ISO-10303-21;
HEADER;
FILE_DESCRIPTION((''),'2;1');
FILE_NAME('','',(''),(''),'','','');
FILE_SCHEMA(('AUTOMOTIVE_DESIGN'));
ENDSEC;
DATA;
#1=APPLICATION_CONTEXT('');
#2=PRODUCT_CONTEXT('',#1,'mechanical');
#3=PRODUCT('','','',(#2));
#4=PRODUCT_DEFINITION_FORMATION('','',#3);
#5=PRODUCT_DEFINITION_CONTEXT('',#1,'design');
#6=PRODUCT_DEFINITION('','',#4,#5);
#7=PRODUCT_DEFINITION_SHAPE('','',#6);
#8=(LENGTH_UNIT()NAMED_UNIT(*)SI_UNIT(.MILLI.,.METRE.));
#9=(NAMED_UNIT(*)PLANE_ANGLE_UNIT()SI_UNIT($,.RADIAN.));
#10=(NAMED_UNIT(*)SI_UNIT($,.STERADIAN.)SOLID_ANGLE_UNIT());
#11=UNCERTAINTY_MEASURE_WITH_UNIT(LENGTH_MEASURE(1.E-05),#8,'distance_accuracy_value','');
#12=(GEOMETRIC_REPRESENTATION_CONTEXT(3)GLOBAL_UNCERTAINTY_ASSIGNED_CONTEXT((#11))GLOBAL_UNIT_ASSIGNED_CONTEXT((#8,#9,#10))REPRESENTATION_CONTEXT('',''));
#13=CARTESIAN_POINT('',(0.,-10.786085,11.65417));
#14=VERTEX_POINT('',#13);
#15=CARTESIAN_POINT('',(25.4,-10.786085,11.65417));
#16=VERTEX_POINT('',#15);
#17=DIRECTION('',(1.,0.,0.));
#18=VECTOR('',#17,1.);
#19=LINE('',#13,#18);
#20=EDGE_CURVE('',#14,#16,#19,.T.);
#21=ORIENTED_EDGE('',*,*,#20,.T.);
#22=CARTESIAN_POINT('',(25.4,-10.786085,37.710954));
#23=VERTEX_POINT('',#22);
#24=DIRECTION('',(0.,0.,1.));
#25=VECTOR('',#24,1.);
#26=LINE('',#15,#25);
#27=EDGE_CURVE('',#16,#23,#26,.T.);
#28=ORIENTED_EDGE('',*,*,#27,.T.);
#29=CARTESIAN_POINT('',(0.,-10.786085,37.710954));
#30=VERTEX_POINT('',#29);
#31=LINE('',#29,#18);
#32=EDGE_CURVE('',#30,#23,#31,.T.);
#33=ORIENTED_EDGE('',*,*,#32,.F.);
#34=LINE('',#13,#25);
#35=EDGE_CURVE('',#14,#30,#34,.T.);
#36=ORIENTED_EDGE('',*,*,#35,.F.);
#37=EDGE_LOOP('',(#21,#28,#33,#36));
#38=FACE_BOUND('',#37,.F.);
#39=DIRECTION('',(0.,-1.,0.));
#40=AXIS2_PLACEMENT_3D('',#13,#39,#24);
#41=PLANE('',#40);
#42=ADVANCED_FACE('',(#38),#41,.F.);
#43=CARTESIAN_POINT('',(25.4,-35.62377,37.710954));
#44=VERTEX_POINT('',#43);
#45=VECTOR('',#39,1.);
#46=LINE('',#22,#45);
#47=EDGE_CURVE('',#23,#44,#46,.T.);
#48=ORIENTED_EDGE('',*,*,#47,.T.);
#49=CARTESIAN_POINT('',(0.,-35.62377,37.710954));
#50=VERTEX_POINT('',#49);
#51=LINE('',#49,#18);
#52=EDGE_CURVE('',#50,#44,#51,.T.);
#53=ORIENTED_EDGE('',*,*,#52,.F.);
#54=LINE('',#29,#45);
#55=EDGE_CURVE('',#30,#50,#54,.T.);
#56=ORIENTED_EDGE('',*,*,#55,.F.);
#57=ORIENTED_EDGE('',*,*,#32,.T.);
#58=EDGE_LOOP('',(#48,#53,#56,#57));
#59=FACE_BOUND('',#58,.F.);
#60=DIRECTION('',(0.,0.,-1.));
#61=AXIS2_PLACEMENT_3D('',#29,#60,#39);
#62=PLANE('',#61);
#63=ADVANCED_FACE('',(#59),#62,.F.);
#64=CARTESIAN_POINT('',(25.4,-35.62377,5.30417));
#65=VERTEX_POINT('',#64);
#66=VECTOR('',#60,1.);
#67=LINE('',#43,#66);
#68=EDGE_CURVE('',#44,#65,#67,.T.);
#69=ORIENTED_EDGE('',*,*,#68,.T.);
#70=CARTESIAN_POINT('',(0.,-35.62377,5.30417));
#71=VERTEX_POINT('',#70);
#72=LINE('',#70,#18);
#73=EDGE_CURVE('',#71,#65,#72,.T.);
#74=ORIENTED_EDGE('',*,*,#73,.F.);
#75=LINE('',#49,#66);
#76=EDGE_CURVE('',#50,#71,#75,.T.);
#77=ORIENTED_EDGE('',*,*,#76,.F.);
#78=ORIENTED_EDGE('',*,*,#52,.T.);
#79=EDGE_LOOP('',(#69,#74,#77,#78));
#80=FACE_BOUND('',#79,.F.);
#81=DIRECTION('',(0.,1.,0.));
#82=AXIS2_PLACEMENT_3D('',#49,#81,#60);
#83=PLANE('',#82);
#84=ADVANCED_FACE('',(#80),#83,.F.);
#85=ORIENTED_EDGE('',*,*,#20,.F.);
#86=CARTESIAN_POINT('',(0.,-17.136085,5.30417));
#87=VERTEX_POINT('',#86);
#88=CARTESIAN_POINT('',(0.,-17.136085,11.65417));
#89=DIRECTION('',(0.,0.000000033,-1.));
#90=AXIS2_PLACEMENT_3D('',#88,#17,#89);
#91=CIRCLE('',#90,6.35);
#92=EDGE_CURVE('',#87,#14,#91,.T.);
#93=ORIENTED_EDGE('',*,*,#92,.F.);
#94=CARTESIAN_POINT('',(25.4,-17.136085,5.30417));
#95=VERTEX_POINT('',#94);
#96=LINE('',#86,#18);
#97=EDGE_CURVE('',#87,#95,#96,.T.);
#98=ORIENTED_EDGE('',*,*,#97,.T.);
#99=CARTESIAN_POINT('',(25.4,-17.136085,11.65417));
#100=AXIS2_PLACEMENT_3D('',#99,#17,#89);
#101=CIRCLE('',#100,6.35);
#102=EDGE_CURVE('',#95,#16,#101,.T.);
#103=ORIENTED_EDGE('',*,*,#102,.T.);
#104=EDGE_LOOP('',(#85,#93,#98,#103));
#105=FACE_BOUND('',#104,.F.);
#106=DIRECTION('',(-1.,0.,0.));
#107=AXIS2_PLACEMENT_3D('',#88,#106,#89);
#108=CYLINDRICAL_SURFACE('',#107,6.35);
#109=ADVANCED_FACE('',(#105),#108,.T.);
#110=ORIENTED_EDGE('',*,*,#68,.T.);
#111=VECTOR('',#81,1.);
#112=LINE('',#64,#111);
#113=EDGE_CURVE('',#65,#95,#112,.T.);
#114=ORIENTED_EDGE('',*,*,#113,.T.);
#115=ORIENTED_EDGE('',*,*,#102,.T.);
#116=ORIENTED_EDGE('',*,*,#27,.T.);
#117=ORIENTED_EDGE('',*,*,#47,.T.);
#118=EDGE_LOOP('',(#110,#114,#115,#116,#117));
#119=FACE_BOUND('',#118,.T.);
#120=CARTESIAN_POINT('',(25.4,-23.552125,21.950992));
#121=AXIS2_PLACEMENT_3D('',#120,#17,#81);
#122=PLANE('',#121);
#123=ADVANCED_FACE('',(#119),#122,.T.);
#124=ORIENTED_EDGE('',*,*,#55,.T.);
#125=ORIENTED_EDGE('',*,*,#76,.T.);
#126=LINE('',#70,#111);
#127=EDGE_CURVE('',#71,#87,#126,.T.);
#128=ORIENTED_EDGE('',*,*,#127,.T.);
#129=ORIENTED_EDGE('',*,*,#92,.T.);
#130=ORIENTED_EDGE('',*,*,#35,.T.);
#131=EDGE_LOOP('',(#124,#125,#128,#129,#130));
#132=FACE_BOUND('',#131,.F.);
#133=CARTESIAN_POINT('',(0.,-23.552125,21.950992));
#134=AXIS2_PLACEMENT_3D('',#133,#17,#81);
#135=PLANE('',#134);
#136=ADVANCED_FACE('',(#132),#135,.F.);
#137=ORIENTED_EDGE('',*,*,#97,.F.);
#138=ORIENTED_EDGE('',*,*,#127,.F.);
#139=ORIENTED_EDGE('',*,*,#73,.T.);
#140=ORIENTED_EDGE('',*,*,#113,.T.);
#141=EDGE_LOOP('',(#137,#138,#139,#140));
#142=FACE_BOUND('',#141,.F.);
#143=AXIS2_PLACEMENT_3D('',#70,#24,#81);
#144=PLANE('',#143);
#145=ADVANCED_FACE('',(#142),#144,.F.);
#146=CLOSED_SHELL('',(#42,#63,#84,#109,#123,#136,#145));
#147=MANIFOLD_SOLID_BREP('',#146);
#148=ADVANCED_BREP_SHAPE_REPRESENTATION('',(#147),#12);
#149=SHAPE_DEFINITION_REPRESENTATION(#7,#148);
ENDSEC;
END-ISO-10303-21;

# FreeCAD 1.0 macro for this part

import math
import FreeCAD as App
import Part
import Sketcher
Q = App.Units.Quantity

doc = App.newDocument("Part")
body = doc.addObject("PartDesign::Body", "Body")

sketch1 = doc.addObject("Sketcher::SketchObject", "Sketch")
body.addObject(sketch1)
sketch1.AttachmentSupport = (doc.YZ_Plane, [""])
sketch1.MapMode = "FlatFace"
sketch1.addGeometry([
    Part.LineSegment(App.Vector(-10.786085, 37.710954, 0), App.Vector(-35.62377, 37.710954, 0)),
    Part.LineSegment(App.Vector(-35.62377, 37.710954, 0), App.Vector(-35.62377, 5.30417, 0)),
    Part.LineSegment(App.Vector(-35.62377, 5.30417, 0), App.Vector(-17.136085, 5.30417, 0)),
    Part.ArcOfCircle(Part.Circle(App.Vector(-17.136085, 11.65417, 0), App.Vector(0, 0, 1), 6.35), math.radians(-89.999998), math.radians(-0.000002)),
    Part.LineSegment(App.Vector(-10.786085, 11.65417, 0), App.Vector(-10.786085, 37.710954, 0)),
], False)
sketch1.addConstraint([
    Sketcher.Constraint("Coincident", 0, 2, 1, 1),
    Sketcher.Constraint("Coincident", 1, 2, 2, 1),
    Sketcher.Constraint("Tangent", 2, 2, 3, 1),
    Sketcher.Constraint("Tangent", 3, 2, 4, 1),
    Sketcher.Constraint("Coincident", 4, 2, 0, 1),
    Sketcher.Constraint("Horizontal", 0),
    Sketcher.Constraint("Vertical", 1),
    Sketcher.Constraint("Horizontal", 2),
    Sketcher.Constraint("Vertical", 4),
    Sketcher.Constraint("Radius", 3, Q("0.25 in")),
    Sketcher.Constraint("DistanceX", 0, 2, 0, 1, Q("24.837685 mm")),
    Sketcher.Constraint("DistanceY", 1, 2, 1, 1, Q("32.406784 mm")),
    Sketcher.Constraint("DistanceY", -1, 1, 3, 3, Q("11.65417 mm")),
    Sketcher.Constraint("DistanceX", 0, 2, -1, 1, Q("35.62377 mm")),
])
pad1 = doc.addObject("PartDesign::Pad", "Pad")
body.addObject(pad1)
pad1.Profile = sketch1
pad1.Length = Q("1 in")

doc.recompute()
